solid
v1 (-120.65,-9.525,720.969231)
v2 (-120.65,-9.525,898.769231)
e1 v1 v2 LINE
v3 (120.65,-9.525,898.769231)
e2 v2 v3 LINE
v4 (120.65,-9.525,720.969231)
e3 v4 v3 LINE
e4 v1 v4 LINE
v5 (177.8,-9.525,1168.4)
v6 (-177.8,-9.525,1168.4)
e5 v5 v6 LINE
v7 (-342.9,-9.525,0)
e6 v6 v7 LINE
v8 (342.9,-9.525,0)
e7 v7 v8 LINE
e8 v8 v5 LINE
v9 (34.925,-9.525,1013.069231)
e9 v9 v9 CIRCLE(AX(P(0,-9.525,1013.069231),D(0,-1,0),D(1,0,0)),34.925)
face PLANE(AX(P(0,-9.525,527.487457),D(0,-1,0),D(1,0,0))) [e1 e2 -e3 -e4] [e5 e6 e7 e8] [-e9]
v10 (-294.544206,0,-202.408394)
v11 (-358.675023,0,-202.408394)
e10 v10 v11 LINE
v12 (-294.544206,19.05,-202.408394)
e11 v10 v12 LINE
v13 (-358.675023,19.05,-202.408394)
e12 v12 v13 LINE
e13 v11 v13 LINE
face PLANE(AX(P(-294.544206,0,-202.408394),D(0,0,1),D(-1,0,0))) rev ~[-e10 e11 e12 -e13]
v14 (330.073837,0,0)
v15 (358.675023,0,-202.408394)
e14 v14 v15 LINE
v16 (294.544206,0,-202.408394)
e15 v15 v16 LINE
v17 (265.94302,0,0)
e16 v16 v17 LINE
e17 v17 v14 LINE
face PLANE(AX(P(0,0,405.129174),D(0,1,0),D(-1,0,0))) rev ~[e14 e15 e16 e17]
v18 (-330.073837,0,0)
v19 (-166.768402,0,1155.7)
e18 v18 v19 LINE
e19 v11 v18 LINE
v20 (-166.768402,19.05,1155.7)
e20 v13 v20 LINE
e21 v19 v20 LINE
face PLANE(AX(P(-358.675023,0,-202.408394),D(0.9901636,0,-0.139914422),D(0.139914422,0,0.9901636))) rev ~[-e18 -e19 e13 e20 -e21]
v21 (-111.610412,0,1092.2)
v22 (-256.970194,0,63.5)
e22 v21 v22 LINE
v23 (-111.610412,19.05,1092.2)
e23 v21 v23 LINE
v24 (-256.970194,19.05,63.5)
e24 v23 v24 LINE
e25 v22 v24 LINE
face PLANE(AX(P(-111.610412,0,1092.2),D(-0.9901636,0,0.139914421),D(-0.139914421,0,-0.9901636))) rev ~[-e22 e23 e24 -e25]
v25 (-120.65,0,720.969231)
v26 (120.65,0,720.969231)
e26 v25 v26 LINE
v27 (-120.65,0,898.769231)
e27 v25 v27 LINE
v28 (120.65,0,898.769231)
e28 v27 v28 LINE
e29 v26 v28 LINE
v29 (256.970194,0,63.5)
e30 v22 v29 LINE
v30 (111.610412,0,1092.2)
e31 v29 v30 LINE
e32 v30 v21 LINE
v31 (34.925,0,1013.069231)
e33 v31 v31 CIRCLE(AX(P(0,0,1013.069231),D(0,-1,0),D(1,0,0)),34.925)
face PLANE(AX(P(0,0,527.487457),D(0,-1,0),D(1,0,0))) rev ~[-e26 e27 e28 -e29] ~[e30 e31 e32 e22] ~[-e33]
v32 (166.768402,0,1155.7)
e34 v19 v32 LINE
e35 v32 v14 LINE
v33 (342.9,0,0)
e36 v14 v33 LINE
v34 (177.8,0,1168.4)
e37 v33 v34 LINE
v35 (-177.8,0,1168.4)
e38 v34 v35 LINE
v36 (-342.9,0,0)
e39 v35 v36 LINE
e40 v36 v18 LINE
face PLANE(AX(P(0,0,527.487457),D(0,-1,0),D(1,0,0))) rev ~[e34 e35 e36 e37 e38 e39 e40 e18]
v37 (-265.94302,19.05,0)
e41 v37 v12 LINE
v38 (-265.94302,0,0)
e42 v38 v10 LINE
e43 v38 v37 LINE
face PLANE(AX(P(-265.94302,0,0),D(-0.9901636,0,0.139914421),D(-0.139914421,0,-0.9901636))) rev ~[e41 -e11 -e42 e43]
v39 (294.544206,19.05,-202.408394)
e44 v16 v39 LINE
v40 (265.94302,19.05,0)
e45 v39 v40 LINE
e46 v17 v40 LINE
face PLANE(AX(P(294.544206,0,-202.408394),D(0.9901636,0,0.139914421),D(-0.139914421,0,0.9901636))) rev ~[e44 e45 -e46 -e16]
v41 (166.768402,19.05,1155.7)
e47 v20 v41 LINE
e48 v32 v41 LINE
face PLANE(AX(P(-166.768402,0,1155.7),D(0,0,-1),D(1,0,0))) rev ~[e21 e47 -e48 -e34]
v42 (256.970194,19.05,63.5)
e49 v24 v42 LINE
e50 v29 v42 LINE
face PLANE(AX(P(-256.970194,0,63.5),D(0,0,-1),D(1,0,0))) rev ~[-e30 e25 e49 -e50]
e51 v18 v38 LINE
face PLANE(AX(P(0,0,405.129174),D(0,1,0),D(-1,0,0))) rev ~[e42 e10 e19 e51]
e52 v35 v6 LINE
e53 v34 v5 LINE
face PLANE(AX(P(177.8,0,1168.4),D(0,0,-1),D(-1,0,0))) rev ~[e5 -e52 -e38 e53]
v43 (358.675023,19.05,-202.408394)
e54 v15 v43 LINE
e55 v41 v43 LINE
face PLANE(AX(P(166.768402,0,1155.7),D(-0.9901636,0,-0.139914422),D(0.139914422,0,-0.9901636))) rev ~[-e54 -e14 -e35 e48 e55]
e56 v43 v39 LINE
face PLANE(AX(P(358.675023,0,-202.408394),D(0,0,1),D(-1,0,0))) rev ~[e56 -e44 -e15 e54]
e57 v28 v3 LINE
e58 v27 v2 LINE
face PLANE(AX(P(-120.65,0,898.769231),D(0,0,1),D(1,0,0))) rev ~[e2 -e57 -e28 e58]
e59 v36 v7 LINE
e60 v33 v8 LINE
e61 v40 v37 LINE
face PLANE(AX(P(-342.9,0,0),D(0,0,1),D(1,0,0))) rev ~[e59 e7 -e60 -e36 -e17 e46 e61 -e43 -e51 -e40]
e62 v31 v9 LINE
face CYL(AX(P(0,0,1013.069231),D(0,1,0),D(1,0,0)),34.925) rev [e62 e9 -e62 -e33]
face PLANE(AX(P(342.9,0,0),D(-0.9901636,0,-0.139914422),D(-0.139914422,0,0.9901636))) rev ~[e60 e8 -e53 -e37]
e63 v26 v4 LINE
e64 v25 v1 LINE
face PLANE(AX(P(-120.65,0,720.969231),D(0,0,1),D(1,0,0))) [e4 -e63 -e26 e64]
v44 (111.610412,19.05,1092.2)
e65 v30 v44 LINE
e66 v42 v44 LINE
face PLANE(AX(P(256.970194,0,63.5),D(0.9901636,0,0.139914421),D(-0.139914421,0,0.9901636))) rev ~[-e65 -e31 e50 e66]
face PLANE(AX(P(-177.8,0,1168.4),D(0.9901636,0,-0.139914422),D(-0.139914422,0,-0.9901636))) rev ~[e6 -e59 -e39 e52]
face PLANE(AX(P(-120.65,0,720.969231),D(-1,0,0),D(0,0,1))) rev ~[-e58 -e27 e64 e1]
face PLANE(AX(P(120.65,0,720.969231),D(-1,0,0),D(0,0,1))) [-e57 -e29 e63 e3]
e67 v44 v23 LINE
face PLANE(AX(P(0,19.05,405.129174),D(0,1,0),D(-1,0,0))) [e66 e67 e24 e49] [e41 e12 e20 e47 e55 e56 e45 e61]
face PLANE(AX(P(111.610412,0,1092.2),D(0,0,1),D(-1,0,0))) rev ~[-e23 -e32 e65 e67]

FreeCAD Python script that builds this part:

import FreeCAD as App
import Part
import Sketcher
from FreeCAD import Vector
Q = App.Units.Quantity


def add_polygon(sketch, points):
    """Adds a closed chain of lines whose ends are joined by coincident constraints."""
    first, n = sketch.GeometryCount, len(points)
    for a, b in zip(points, points[1:] + points[:1]):
        sketch.addGeometry(Part.LineSegment(App.Vector(*a, 0), App.Vector(*b, 0)), False)
    for i in range(n):
        sketch.addConstraint(Sketcher.Constraint("Coincident", first + i, 2, first + (i + 1) % n, 1))

doc = App.newDocument("Part")
body = doc.addObject("PartDesign::Body", "Body")

sketch1 = body.newObject("Sketcher::SketchObject", "Sketch")
sketch1.AttachmentSupport = (doc.getObject("XZ_Plane"), [""])
sketch1.MapMode = "FlatFace"
add_polygon(sketch1, [(-177.8, 1168.4), (-342.9, 0), (342.9, 0), (177.8, 1168.4)])
add_polygon(sketch1, [(120.65, 720.969231), (-120.65, 720.969231), (-120.65, 898.769231), (120.65, 898.769231)])
sketch1.addGeometry(Part.Circle(Vector(0, 1013.069231, 0), Vector(0, 0, 1), 34.925), False)
sketch1.addConstraint(Sketcher.Constraint("Horizontal", 1))
sketch1.addConstraint(Sketcher.Constraint("Horizontal", 3))
sketch1.addConstraint(Sketcher.Constraint("Horizontal", 4))
sketch1.addConstraint(Sketcher.Constraint("Vertical", 5))
sketch1.addConstraint(Sketcher.Constraint("Horizontal", 6))
sketch1.addConstraint(Sketcher.Constraint("Vertical", 7))
sketch1.addConstraint(Sketcher.Constraint("Symmetric", 0, 2, 1, 2, -1, 1))
sketch1.addConstraint(Sketcher.Constraint("PointOnObject", 8, 3, -2))
sketch1.addConstraint(Sketcher.Constraint("Equal", 0, 2))
sketch1.addConstraint(Sketcher.Constraint("Diameter", 8, Q("2.75 in")))
sketch1.addConstraint(Sketcher.Constraint("DistanceX", 1, 1, 1, 2, Q("27 in")))
sketch1.addConstraint(Sketcher.Constraint("DistanceX", 3, 2, 3, 1, Q("14 in")))
sketch1.addConstraint(Sketcher.Constraint("DistanceY", 5, 1, 5, 2, Q("7 in")))
sketch1.addConstraint(Sketcher.Constraint("DistanceX", 4, 2, 4, 1, Q("9.5 in")))
sketch1.addConstraint(Sketcher.Constraint("DistanceY", -1, 1, 2, 2, Q("46 in")))
sketch1.addConstraint(Sketcher.Constraint("DistanceY", 4, 2, 8, 3, Q("11.5 in")))
sketch1.addConstraint(Sketcher.Constraint("DistanceX", 4, 2, -1, 1, Q("4.75 in")))
sketch1.addConstraint(Sketcher.Constraint("DistanceY", -1, 1, 8, 3, Q("1013.069231 mm")))
pad1 = body.newObject("PartDesign::Pad", "Pad")
pad1.Profile = sketch1
pad1.Length = Q("0.375 in")

sketch2 = body.newObject("Sketcher::SketchObject", "Sketch001")
sketch2.AttachmentSupport = (doc.getObject("XZ_Plane"), [""])
sketch2.MapMode = "FlatFace"
add_polygon(sketch2, [(166.768402, 1155.7), (358.675023, -202.408394), (294.544206, -202.408394), (265.94302, 0), (-265.94302, 0), (-294.544206, -202.408394), (-358.675023, -202.408394), (-166.768402, 1155.7)])
add_polygon(sketch2, [(-111.610412, 1092.2), (-256.970194, 63.5), (256.970194, 63.5), (111.610412, 1092.2)])
sketch2.addConstraint(Sketcher.Constraint("Horizontal", 1))
sketch2.addConstraint(Sketcher.Constraint("Horizontal", 3))
sketch2.addConstraint(Sketcher.Constraint("Horizontal", 5))
sketch2.addConstraint(Sketcher.Constraint("Horizontal", 7))
sketch2.addConstraint(Sketcher.Constraint("Horizontal", 9))
sketch2.addConstraint(Sketcher.Constraint("Horizontal", 11))
sketch2.addConstraint(Sketcher.Constraint("Symmetric", 2, 2, 3, 2, -1, 1))
sketch2.addConstraint(Sketcher.Constraint("Symmetric", 1, 2, 4, 2, -2))
sketch2.addConstraint(Sketcher.Constraint("Parallel", 0, 2))
sketch2.addConstraint(Sketcher.Constraint("Parallel", 4, 6))
sketch2.addConstraint(Sketcher.Constraint("Parallel", 6, 8))
sketch2.addConstraint(Sketcher.Constraint("Parallel", 2, 10))
sketch2.addConstraint(Sketcher.Constraint("Equal", 1, 5))
sketch2.addConstraint(Sketcher.Constraint("Distance", 0, Q("54 in")))
sketch2.addConstraint(Sketcher.Constraint("DistanceY", -1, 1, 10, 2, Q("43 in")))
sketch2.addConstraint(Sketcher.Constraint("DistanceY", -1, 1, 6, 2, Q("45.5 in")))
sketch2.addConstraint(Sketcher.Constraint("DistanceY", -1, 1, 8, 2, Q("2.5 in")))
sketch2.addConstraint(Sketcher.Constraint("DistanceX", 3, 2, 3, 1, Q("531.88604 mm")))
sketch2.addConstraint(Sketcher.Constraint("DistanceX", 9, 1, 9, 2, Q("513.940388 mm")))
sketch2.addConstraint(Sketcher.Constraint("DistanceX", 6, 2, -1, 1, Q("166.768402 mm")))
sketch2.addConstraint(Sketcher.Constraint("DistanceX", 8, 2, 1, 2, Q("551.5144 mm")))
sketch2.addConstraint(Sketcher.Constraint("DistanceX", 1, 2, 1, 1, Q("64.130817 mm")))
pad2 = body.newObject("PartDesign::Pad", "Pad001")
pad2.Profile = sketch2
pad2.Length = Q("0.75 in")
pad2.Reversed = True

doc.recompute()
